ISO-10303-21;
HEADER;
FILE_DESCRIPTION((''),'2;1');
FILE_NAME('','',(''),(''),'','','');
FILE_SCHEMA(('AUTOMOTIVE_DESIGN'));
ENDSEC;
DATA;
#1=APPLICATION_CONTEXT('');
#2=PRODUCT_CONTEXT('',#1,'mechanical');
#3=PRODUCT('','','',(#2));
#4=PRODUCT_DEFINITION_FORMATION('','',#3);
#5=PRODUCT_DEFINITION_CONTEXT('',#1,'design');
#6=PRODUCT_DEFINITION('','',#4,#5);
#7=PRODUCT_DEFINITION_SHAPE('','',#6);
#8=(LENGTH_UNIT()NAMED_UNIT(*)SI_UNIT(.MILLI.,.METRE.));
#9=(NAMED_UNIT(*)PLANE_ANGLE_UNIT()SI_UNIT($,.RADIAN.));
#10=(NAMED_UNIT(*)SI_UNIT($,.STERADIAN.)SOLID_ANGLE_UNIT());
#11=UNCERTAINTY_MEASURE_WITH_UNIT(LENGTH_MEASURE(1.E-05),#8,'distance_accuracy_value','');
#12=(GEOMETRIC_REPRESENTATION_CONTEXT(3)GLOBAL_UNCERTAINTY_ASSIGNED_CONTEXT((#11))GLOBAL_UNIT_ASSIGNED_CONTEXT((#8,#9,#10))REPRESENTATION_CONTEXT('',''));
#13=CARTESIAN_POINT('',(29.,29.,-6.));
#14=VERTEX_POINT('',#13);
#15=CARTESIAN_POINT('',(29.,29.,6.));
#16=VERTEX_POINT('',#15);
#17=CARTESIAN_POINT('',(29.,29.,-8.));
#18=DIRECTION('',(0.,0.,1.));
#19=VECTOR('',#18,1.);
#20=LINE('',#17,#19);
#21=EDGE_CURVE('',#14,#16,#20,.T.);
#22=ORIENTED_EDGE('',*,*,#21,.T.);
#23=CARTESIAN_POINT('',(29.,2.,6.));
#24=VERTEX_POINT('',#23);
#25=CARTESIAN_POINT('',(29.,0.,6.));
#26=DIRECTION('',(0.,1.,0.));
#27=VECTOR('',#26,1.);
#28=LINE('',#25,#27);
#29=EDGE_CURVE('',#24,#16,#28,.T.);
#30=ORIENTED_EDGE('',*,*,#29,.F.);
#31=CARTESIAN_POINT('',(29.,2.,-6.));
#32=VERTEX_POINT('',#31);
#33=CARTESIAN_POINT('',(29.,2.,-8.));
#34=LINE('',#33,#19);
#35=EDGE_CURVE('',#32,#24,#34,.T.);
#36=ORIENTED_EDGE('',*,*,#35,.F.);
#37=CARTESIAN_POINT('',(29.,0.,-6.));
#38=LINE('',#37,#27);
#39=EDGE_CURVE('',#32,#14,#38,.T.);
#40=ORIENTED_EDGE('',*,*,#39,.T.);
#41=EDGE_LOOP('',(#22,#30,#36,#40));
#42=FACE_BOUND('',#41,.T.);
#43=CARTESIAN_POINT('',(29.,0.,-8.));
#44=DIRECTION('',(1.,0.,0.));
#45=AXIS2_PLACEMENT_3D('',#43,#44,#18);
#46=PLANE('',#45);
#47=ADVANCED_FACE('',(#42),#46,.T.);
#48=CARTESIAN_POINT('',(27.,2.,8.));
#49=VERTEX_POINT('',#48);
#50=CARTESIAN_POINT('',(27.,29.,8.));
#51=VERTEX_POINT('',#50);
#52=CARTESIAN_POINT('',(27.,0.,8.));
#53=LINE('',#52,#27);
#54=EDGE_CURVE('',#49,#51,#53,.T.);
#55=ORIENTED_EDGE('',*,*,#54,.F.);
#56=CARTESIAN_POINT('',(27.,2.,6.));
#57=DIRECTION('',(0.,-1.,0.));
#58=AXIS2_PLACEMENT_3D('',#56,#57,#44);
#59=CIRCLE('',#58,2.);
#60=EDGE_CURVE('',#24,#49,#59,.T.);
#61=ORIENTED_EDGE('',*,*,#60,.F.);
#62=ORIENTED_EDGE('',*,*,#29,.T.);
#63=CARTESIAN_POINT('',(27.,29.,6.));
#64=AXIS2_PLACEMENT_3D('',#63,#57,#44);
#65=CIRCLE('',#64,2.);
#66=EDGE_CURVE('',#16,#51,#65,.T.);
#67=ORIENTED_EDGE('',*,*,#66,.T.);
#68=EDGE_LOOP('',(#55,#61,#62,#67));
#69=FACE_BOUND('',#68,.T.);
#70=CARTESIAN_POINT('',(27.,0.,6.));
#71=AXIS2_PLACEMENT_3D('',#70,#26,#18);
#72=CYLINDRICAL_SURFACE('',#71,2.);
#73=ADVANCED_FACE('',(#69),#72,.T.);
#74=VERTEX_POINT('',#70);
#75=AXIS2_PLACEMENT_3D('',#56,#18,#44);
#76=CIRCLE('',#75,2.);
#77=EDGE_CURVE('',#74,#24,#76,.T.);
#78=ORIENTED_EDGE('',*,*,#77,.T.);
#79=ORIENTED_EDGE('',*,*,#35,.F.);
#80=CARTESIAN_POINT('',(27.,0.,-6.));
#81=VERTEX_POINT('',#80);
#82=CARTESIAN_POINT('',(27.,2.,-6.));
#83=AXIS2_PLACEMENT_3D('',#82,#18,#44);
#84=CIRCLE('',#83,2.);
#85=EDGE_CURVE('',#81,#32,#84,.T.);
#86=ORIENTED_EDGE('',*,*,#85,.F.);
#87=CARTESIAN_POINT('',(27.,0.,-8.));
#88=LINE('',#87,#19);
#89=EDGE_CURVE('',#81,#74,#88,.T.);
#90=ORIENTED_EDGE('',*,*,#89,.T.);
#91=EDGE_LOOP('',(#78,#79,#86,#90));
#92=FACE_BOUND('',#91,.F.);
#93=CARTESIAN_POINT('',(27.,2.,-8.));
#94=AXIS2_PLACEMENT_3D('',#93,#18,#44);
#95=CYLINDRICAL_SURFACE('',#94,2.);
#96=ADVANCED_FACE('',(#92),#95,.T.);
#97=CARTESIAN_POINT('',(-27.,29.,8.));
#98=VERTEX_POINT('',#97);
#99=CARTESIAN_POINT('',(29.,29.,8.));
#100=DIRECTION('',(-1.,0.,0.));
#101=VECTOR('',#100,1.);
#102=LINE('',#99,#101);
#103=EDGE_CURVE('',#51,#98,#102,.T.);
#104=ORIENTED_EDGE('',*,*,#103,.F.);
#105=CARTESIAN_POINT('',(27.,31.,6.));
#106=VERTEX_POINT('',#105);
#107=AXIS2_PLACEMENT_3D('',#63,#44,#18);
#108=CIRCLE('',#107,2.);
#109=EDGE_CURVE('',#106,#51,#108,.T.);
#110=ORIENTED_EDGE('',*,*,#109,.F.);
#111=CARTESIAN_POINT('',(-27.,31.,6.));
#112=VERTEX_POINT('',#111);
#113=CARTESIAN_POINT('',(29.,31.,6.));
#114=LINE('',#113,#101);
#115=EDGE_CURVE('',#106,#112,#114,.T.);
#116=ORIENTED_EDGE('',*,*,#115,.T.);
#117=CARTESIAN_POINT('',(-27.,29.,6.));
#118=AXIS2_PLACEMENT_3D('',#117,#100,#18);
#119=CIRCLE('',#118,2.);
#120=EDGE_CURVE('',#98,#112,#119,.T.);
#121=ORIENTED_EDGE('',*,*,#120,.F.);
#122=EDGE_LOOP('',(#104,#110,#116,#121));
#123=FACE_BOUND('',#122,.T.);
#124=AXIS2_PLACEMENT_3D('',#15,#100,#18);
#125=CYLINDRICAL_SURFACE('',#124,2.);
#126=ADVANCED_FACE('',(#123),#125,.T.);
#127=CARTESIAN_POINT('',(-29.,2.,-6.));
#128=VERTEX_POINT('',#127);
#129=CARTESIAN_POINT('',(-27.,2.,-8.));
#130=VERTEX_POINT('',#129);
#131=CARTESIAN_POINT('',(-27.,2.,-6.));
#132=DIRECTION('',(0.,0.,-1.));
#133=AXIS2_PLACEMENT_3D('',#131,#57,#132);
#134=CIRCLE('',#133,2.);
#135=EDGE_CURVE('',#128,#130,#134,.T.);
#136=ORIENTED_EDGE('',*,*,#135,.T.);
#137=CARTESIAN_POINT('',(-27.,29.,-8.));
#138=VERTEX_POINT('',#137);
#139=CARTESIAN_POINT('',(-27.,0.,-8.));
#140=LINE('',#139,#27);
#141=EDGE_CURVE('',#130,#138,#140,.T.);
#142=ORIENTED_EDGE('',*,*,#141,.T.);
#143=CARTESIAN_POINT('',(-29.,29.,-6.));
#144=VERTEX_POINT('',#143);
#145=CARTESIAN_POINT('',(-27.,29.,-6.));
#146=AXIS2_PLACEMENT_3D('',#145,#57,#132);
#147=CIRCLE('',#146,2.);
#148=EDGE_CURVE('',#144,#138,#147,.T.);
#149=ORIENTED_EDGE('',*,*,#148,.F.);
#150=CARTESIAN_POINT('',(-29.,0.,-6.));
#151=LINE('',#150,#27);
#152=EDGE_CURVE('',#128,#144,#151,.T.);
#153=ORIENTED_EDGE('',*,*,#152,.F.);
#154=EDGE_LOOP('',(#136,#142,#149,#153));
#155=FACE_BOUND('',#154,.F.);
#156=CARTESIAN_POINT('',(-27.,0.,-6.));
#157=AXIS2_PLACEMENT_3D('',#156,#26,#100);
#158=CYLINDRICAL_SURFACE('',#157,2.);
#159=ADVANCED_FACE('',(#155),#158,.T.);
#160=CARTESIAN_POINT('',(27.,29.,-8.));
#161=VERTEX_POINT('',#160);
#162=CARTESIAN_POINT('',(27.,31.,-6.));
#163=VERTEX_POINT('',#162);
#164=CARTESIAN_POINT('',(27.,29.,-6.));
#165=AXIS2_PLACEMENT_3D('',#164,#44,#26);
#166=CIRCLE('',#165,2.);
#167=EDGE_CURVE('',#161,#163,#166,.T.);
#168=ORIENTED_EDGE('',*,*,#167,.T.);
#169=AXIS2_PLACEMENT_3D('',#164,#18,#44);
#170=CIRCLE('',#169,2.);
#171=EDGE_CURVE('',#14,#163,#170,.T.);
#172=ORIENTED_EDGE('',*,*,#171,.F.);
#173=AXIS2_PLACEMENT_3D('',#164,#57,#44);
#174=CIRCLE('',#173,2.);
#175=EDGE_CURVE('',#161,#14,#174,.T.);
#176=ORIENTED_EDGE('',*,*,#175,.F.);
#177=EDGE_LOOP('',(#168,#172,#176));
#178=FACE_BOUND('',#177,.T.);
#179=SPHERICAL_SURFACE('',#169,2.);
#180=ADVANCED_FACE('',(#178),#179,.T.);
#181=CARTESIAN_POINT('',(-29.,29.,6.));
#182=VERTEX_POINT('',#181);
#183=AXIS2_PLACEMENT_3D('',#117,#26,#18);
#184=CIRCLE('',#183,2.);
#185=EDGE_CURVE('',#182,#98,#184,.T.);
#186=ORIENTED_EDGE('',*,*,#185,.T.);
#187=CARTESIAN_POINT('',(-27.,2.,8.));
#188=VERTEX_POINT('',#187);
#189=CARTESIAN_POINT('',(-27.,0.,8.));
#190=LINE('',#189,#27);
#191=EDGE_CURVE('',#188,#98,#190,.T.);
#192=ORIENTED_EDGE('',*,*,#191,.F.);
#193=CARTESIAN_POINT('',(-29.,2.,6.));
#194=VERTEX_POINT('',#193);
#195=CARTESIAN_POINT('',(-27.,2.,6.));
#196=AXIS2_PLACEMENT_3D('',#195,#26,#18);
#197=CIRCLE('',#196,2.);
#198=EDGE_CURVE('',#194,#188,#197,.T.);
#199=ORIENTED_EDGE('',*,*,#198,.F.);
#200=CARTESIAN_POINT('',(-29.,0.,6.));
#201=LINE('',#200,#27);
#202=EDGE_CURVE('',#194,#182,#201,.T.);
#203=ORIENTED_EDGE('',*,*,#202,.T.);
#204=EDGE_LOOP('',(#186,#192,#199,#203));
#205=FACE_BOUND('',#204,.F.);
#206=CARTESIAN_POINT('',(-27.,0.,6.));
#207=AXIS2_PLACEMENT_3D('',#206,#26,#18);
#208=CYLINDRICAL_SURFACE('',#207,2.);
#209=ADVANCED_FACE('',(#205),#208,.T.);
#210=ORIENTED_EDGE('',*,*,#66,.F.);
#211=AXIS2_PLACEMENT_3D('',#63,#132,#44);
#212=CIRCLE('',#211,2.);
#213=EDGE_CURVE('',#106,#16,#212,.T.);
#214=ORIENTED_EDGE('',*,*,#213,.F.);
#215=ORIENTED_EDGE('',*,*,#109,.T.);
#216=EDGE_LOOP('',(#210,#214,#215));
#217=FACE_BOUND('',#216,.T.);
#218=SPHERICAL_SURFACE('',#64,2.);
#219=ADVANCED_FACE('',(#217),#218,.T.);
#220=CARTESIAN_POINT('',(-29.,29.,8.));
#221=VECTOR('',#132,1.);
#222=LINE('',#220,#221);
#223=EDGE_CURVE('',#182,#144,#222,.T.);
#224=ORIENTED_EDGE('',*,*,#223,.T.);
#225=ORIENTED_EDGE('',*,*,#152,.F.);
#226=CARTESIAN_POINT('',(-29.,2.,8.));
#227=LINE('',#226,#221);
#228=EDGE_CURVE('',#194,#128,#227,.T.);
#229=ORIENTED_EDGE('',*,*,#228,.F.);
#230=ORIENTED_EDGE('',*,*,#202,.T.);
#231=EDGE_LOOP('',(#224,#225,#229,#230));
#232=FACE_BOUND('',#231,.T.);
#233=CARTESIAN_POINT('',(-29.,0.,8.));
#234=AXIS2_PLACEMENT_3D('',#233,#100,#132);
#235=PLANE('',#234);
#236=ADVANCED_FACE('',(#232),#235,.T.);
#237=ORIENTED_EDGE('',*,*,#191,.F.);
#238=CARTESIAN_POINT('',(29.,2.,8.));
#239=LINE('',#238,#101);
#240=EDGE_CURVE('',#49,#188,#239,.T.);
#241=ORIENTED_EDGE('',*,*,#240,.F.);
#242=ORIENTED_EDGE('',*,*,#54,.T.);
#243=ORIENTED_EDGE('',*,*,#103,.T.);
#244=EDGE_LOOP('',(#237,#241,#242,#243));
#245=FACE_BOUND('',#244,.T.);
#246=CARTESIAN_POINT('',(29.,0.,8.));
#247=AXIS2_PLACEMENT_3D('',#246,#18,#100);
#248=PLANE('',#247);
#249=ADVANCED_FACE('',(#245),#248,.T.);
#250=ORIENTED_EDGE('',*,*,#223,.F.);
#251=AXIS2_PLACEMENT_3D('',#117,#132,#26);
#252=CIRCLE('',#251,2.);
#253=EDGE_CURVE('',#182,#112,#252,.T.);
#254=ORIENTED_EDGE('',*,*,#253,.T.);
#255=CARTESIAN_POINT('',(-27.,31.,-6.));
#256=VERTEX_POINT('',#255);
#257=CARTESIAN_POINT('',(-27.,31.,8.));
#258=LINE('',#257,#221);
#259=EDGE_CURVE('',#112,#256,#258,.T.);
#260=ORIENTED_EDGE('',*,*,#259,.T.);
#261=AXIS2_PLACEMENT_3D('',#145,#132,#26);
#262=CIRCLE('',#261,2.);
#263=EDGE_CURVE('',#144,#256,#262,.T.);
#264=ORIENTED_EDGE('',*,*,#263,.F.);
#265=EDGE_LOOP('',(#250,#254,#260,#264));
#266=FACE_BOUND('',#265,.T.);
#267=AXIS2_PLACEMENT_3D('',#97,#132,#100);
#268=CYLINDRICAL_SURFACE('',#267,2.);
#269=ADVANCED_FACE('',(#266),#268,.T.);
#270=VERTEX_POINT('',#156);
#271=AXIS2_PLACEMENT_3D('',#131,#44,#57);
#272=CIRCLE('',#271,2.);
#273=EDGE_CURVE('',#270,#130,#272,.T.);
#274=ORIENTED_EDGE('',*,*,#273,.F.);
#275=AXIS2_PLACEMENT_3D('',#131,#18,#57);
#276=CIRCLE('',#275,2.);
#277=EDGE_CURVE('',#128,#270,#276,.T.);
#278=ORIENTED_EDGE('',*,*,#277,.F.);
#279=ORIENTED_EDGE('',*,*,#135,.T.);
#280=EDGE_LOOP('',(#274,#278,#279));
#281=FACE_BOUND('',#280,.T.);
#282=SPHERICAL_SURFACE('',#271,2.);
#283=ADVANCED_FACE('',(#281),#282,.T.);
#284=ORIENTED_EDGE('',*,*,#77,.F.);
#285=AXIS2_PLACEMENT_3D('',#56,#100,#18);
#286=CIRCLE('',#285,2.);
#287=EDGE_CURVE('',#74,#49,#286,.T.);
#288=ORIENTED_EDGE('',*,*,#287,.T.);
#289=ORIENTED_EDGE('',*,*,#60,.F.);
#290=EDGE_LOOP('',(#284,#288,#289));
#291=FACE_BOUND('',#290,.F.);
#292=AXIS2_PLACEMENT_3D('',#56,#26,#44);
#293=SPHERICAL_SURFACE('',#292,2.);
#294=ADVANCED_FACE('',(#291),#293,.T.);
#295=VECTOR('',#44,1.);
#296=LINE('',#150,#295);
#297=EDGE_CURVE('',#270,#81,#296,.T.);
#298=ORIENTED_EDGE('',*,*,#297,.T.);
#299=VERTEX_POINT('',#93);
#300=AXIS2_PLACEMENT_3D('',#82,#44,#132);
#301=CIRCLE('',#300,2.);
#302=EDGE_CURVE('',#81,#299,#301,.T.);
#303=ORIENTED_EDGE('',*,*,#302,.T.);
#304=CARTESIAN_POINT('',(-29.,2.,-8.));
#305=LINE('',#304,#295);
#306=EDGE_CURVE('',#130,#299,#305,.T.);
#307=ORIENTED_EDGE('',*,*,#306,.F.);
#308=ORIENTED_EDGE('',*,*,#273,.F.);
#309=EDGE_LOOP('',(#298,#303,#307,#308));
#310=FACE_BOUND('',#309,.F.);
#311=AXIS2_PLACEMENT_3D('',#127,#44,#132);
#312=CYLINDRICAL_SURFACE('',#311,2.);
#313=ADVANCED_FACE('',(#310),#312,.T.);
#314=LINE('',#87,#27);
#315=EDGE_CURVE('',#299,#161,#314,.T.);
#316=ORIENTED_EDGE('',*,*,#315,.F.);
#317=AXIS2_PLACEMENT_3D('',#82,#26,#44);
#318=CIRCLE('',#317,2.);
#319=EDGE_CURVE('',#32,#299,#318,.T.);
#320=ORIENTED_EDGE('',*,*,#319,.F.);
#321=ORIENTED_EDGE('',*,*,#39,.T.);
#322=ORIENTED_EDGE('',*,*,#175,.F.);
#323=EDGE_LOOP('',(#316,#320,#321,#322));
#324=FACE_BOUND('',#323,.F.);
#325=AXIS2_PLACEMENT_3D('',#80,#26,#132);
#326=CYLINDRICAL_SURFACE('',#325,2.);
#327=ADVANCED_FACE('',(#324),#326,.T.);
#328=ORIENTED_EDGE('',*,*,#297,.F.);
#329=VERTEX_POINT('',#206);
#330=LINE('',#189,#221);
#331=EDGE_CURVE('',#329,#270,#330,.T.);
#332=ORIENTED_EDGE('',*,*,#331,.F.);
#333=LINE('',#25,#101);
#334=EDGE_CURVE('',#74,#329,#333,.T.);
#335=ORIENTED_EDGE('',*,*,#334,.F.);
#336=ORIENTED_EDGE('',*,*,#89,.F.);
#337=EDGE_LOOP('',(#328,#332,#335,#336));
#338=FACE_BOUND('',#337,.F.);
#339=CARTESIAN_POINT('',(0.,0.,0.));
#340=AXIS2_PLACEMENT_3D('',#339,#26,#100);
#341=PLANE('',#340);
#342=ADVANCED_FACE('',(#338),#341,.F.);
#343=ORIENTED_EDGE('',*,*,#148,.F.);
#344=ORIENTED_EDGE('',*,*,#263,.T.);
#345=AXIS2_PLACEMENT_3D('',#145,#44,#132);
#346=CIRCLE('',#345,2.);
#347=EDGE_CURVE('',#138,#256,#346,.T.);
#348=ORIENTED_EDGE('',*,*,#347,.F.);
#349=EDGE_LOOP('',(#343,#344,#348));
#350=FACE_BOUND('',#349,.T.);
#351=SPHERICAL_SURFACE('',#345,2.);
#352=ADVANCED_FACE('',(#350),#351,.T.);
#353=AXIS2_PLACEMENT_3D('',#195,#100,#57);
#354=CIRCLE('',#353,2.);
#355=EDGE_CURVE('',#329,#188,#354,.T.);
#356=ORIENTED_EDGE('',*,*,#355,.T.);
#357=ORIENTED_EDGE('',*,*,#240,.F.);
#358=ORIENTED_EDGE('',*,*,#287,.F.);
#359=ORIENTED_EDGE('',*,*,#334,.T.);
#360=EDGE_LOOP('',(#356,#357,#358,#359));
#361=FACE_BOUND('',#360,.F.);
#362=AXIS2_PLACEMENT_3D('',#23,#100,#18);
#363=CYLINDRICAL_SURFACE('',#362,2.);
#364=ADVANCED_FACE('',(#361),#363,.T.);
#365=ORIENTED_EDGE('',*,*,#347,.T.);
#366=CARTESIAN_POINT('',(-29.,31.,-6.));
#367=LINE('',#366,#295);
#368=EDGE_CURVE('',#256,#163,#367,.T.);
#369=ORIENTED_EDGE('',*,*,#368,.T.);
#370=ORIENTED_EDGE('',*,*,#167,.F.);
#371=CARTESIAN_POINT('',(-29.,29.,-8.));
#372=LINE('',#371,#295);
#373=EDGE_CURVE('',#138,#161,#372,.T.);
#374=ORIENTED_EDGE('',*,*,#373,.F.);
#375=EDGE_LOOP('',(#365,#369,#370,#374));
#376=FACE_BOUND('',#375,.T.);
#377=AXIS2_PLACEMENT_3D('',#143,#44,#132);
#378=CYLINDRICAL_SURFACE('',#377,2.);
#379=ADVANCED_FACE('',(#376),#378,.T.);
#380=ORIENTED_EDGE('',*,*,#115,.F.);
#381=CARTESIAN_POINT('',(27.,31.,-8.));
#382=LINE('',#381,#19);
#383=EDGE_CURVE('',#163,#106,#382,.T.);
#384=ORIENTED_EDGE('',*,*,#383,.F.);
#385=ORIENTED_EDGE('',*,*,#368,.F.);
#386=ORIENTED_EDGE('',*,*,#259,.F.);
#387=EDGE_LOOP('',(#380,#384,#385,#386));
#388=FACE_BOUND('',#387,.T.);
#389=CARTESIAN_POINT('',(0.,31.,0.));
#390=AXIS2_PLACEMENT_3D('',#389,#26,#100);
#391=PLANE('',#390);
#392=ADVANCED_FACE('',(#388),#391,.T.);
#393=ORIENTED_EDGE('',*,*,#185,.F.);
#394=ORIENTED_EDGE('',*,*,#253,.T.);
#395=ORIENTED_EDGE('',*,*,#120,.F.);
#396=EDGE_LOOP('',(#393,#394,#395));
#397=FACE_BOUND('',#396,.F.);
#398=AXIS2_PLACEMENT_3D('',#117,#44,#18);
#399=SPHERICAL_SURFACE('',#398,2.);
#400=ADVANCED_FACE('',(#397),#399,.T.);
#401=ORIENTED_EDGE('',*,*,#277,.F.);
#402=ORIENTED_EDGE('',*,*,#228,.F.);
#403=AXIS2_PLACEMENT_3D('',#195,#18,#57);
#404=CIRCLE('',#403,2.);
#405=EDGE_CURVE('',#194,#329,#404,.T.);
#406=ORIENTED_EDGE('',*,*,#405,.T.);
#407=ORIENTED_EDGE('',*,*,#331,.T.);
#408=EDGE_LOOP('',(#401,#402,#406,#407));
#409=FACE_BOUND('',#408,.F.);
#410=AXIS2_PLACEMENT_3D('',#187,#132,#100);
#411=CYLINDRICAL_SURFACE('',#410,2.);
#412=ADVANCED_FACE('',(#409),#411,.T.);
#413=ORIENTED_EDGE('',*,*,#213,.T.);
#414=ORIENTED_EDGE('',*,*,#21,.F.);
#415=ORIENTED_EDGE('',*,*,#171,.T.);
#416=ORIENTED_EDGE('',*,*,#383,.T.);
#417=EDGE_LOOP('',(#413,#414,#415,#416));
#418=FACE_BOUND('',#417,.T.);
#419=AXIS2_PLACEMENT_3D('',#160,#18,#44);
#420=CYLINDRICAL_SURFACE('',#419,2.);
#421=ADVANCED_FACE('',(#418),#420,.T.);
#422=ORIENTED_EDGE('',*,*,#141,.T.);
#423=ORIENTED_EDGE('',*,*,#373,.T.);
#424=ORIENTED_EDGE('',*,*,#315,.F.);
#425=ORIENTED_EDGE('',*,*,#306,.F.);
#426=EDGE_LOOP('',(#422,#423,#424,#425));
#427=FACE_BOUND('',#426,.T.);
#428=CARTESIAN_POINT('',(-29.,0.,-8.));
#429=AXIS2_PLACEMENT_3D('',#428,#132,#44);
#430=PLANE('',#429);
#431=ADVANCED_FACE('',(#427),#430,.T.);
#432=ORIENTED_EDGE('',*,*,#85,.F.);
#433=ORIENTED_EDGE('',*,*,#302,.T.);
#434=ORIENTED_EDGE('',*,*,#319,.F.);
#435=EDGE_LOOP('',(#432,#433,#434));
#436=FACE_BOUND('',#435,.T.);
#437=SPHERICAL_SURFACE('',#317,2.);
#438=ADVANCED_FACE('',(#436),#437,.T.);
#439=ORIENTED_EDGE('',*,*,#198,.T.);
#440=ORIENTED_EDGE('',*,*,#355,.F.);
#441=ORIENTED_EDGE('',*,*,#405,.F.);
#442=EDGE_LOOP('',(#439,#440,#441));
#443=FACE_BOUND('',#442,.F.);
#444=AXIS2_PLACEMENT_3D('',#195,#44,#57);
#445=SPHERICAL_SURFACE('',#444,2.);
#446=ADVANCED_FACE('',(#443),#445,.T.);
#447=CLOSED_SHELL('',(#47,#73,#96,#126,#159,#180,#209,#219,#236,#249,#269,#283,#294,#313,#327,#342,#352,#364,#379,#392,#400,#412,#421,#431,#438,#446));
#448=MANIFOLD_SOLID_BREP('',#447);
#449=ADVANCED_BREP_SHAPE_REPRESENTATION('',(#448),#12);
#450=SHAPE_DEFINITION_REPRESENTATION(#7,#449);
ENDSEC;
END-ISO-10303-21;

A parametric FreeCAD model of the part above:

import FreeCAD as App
import Part
import Sketcher
from FreeCAD import Vector
Q = App.Units.Quantity


def add_polygon(sketch, points):
    """Adds a closed chain of lines whose ends are joined by coincident constraints."""
    first, n = sketch.GeometryCount, len(points)
    for a, b in zip(points, points[1:] + points[:1]):
        sketch.addGeometry(Part.LineSegment(App.Vector(*a, 0), App.Vector(*b, 0)), False)
    for i in range(n):
        sketch.addConstraint(Sketcher.Constraint("Coincident", first + i, 2, first + (i + 1) % n, 1))

doc = App.newDocument("Part")
body = doc.addObject("PartDesign::Body", "Body")

# Sketch on XZ plane
sketch1 = body.newObject("Sketcher::SketchObject", "Sketch")
sketch1.AttachmentSupport = (doc.getObject("XZ_Plane"), [""])
sketch1.MapMode = "FlatFace"
add_polygon(sketch1, [(-29, 8), (29, 8), (29, -8), (-29, -8)])  # lines 0-3
sketch1.addConstraint([
    Sketcher.Constraint("Horizontal", 0),
    Sketcher.Constraint("Vertical", 1),
    Sketcher.Constraint("Horizontal", 2),
    Sketcher.Constraint("Vertical", 3),
    Sketcher.Constraint("Symmetric", 0, 2, 2, 2, -1, 1),
    Sketcher.Constraint("DistanceX", 0, 1, 0, 2, Q("58 mm")),
    Sketcher.Constraint("DistanceY", 1, 2, 1, 1, Q("16 mm")),
])
pad1 = body.newObject("PartDesign::Pad", "Pad")
pad1.Profile = sketch1
pad1.Length = 31
pad1.Reversed = True
doc.recompute()

fillet = body.newObject("PartDesign::Fillet", "Fillet")
fillet.Base = (pad1, ["Edge1"])
fillet.UseAllEdges = True
fillet.Radius = 2

doc.recompute()
